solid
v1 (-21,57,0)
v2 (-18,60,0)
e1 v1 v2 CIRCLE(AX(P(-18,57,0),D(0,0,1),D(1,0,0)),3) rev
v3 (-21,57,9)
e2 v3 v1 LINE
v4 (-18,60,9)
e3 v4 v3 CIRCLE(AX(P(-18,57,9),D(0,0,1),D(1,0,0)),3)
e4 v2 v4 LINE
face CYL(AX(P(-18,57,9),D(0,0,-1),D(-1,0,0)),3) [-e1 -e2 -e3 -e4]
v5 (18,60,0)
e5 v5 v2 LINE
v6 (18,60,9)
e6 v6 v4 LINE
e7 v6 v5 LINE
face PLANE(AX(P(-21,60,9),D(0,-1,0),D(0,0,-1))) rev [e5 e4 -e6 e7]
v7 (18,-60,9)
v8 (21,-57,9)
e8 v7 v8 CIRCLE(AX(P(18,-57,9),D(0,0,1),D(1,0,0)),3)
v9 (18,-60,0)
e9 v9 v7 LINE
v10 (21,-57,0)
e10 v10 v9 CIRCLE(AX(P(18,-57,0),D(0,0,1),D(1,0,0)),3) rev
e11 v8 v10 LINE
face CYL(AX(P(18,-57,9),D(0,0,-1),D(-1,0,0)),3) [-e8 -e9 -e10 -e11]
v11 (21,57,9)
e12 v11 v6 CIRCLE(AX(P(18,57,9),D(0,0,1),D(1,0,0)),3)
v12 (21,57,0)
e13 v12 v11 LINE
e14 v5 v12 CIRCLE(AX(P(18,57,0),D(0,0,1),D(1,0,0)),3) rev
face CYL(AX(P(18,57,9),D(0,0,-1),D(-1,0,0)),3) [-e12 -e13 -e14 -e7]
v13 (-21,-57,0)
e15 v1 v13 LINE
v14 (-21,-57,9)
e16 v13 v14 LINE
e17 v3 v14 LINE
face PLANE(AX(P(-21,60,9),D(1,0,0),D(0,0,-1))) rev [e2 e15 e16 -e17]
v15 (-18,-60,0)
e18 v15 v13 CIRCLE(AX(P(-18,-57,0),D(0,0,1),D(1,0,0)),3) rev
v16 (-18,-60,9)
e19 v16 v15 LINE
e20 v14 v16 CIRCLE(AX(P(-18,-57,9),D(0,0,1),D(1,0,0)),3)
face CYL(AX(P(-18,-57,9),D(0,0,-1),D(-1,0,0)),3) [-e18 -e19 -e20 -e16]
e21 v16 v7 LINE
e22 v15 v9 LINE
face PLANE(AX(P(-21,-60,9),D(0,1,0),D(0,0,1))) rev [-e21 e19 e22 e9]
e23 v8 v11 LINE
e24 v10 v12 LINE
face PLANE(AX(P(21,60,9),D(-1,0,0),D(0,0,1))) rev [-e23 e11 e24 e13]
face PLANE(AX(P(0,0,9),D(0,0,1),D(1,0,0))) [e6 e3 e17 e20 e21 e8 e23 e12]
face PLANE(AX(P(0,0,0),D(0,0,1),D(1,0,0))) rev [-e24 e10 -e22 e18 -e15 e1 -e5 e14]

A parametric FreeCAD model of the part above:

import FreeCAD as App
import Part
import Sketcher

V = App.Vector


def edges_at(feature, points):
    """Names of the edges that pass closest to the given points."""
    edges = feature.Shape.Edges
    near = lambda p: min(range(len(edges)), key=lambda i: edges[i].distToShape(Part.Vertex(*p))[0])
    return sorted({f"Edge{near(p) + 1}" for p in points})

doc = App.newDocument("Part")
body = doc.addObject("PartDesign::Body", "Body")

sketch1 = body.newObject("Sketcher::SketchObject", "Sketch")
sketch1.AttachmentSupport = (doc.getObject("XY_Plane"), [""])
sketch1.MapMode = "FlatFace"
sketch1.addGeometry([
    Part.LineSegment(V(-21, 60, 0), V(-21, -60, 0)),
    Part.LineSegment(V(-21, -60, 0), V(21, -60, 0)),
    Part.LineSegment(V(21, -60, 0), V(21, 60, 0)),
    Part.LineSegment(V(21, 60, 0), V(-21, 60, 0)),
], False)
sketch1.addConstraint([
    Sketcher.Constraint("Coincident", 0, 2, 1, 1),
    Sketcher.Constraint("Coincident", 1, 2, 2, 1),
    Sketcher.Constraint("Coincident", 2, 2, 3, 1),
    Sketcher.Constraint("Coincident", 3, 2, 0, 1),
    Sketcher.Constraint("Vertical", 0),
    Sketcher.Constraint("Horizontal", 1),
    Sketcher.Constraint("Vertical", 2),
    Sketcher.Constraint("Horizontal", 3),
    Sketcher.Constraint("Symmetric", 0, 2, 2, 2, -1, 1),
    Sketcher.Constraint("DistanceX", 1, 1, 1, 2, 42.0),
    Sketcher.Constraint("DistanceY", 0, 2, 0, 1, 120.0),
])
pad1 = body.newObject("PartDesign::Pad", "Pad")
pad1.Profile = sketch1
pad1.Length = 9
doc.recompute()

fillet = body.newObject("PartDesign::Fillet", "Fillet")
fillet.Base = (pad1, edges_at(pad1, [
    (-21, 60, 4.5),
    (21, 60, 4.5),
    (21, -60, 4.5),
    (-21, -60, 4.5),
]))
fillet.Radius = 3

doc.recompute()
